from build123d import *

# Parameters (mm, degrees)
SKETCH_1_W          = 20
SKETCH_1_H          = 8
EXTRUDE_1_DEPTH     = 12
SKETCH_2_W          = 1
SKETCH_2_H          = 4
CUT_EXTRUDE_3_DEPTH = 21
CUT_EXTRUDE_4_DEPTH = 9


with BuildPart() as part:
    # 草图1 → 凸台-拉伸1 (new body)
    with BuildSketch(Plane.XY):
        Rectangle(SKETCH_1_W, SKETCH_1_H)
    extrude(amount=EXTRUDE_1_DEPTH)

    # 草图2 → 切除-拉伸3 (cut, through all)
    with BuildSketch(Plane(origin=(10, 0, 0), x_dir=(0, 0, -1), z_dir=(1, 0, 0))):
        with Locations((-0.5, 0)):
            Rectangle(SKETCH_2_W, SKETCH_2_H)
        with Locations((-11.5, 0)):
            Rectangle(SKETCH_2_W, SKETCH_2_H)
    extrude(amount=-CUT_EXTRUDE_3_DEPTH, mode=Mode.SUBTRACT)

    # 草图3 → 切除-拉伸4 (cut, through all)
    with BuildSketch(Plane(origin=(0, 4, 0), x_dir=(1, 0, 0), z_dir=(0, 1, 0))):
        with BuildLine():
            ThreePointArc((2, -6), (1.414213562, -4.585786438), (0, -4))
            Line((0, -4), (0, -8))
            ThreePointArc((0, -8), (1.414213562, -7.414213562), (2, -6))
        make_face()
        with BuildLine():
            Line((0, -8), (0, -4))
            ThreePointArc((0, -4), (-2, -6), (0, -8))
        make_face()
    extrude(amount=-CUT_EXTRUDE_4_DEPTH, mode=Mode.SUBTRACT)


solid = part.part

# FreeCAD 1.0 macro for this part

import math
import FreeCAD as App
import Part
import Sketcher
from FreeCAD import Vector
Q = App.Units.Quantity


def add_polygon(sketch, points):
    """Adds a closed chain of lines whose ends are joined by coincident constraints."""
    first, n = sketch.GeometryCount, len(points)
    for a, b in zip(points, points[1:] + points[:1]):
        sketch.addGeometry(Part.LineSegment(App.Vector(*a, 0), App.Vector(*b, 0)), False)
    for i in range(n):
        sketch.addConstraint(Sketcher.Constraint("Coincident", first + i, 2, first + (i + 1) % n, 1))

doc = App.newDocument("Part")
body = doc.addObject("PartDesign::Body", "Body")

# Sketch on XY plane
sketch1 = body.newObject("Sketcher::SketchObject", "Sketch")
sketch1.AttachmentSupport = (doc.getObject("XY_Plane"), [""])
sketch1.MapMode = "FlatFace"
add_polygon(sketch1, [(-10, 4), (-10, -4), (10, -4), (10, 4)])  # lines 0-3
sketch1.addConstraint(Sketcher.Constraint("Vertical", 0))
sketch1.addConstraint(Sketcher.Constraint("Horizontal", 1))
sketch1.addConstraint(Sketcher.Constraint("Vertical", 2))
sketch1.addConstraint(Sketcher.Constraint("Horizontal", 3))
sketch1.addConstraint(Sketcher.Constraint("Symmetric", 0, 2, 2, 2, -1, 1))
sketch1.addConstraint(Sketcher.Constraint("DistanceX", 1, 1, 1, 2, Q("20 mm")))
sketch1.addConstraint(Sketcher.Constraint("DistanceY", 0, 2, 0, 1, Q("8 mm")))
pad1 = body.newObject("PartDesign::Pad", "Pad")
pad1.Profile = sketch1
pad1.Length = 12

# Sketch on YZ plane
sketch2 = body.newObject("Sketcher::SketchObject", "Sketch001")
sketch2.AttachmentSupport = (doc.getObject("YZ_Plane"), [""])
sketch2.MapMode = "FlatFace"
sketch2.AttachmentOffset = App.Placement(Vector(0, 0, 10), App.Rotation())
add_polygon(sketch2, [(2, 1), (-2, 1), (-2, 0), (2, 0)])  # lines 0-3
add_polygon(sketch2, [(2, 12), (-2, 12), (-2, 11), (2, 11)])  # lines 4-7
sketch2.addConstraint(Sketcher.Constraint("Horizontal", 0))
sketch2.addConstraint(Sketcher.Constraint("Vertical", 1))
sketch2.addConstraint(Sketcher.Constraint("Horizontal", 2))
sketch2.addConstraint(Sketcher.Constraint("Vertical", 3))
sketch2.addConstraint(Sketcher.Constraint("Horizontal", 4))
sketch2.addConstraint(Sketcher.Constraint("Vertical", 5))
sketch2.addConstraint(Sketcher.Constraint("Horizontal", 6))
sketch2.addConstraint(Sketcher.Constraint("Vertical", 7))
sketch2.addConstraint(Sketcher.Constraint("Symmetric", 1, 2, 2, 2, -1, 1))
sketch2.addConstraint(Sketcher.Constraint("Vertical", 1, 2, 4, 2))
sketch2.addConstraint(Sketcher.Constraint("Vertical", 3, 2, 6, 2))
sketch2.addConstraint(Sketcher.Constraint("Equal", 3, 5))
sketch2.addConstraint(Sketcher.Constraint("DistanceX", 0, 2, 0, 1, Q("4 mm")))
sketch2.addConstraint(Sketcher.Constraint("DistanceY", 1, 2, 1, 1, Q("1 mm")))
sketch2.addConstraint(Sketcher.Constraint("DistanceY", -1, 1, 4, 2, Q("12 mm")))
pocket1 = body.newObject("PartDesign::Pocket", "Pocket")
pocket1.Profile = sketch2
pocket1.Type = "ThroughAll"

# Sketch on XZ plane
sketch3 = body.newObject("Sketcher::SketchObject", "Sketch002")
sketch3.AttachmentSupport = (doc.getObject("XZ_Plane"), [""])
sketch3.MapMode = "FlatFace"
sketch3.AttachmentOffset = App.Placement(Vector(0, 0, -4), App.Rotation())
sketch3.addGeometry(Part.ArcOfCircle(Part.Circle(Vector(0, 6, 0), Vector(0, 0, 1), 2), math.radians(-90), math.radians(0)), False)
sketch3.addGeometry(Part.ArcOfCircle(Part.Circle(Vector(0, 6, 0), Vector(0, 0, 1), 2), math.radians(90), math.radians(270)), False)
sketch3.addGeometry(Part.ArcOfCircle(Part.Circle(Vector(0, 6, 0), Vector(0, 0, 1), 2), math.radians(0), math.radians(90)), False)
sketch3.addConstraint(Sketcher.Constraint("Tangent", 0, 1, 1, 2))
sketch3.addConstraint(Sketcher.Constraint("Tangent", 1, 1, 2, 2))
sketch3.addConstraint(Sketcher.Constraint("Tangent", 2, 1, 0, 2))
sketch3.addConstraint(Sketcher.Constraint("PointOnObject", 0, 3, -2))
sketch3.addConstraint(Sketcher.Constraint("PointOnObject", 0, 1, -2))
sketch3.addConstraint(Sketcher.Constraint("PointOnObject", 1, 1, -2))
sketch3.addConstraint(Sketcher.Constraint("Horizontal", 1, 3, 2, 1))
sketch3.addConstraint(Sketcher.Constraint("Radius", 0, Q("2 mm")))
sketch3.addConstraint(Sketcher.Constraint("DistanceY", -1, 1, 0, 3, Q("6 mm")))
pocket2 = body.newObject("PartDesign::Pocket", "Pocket001")
pocket2.Profile = sketch3
pocket2.Type = "ThroughAll"
pocket2.Reversed = True

doc.recompute()
